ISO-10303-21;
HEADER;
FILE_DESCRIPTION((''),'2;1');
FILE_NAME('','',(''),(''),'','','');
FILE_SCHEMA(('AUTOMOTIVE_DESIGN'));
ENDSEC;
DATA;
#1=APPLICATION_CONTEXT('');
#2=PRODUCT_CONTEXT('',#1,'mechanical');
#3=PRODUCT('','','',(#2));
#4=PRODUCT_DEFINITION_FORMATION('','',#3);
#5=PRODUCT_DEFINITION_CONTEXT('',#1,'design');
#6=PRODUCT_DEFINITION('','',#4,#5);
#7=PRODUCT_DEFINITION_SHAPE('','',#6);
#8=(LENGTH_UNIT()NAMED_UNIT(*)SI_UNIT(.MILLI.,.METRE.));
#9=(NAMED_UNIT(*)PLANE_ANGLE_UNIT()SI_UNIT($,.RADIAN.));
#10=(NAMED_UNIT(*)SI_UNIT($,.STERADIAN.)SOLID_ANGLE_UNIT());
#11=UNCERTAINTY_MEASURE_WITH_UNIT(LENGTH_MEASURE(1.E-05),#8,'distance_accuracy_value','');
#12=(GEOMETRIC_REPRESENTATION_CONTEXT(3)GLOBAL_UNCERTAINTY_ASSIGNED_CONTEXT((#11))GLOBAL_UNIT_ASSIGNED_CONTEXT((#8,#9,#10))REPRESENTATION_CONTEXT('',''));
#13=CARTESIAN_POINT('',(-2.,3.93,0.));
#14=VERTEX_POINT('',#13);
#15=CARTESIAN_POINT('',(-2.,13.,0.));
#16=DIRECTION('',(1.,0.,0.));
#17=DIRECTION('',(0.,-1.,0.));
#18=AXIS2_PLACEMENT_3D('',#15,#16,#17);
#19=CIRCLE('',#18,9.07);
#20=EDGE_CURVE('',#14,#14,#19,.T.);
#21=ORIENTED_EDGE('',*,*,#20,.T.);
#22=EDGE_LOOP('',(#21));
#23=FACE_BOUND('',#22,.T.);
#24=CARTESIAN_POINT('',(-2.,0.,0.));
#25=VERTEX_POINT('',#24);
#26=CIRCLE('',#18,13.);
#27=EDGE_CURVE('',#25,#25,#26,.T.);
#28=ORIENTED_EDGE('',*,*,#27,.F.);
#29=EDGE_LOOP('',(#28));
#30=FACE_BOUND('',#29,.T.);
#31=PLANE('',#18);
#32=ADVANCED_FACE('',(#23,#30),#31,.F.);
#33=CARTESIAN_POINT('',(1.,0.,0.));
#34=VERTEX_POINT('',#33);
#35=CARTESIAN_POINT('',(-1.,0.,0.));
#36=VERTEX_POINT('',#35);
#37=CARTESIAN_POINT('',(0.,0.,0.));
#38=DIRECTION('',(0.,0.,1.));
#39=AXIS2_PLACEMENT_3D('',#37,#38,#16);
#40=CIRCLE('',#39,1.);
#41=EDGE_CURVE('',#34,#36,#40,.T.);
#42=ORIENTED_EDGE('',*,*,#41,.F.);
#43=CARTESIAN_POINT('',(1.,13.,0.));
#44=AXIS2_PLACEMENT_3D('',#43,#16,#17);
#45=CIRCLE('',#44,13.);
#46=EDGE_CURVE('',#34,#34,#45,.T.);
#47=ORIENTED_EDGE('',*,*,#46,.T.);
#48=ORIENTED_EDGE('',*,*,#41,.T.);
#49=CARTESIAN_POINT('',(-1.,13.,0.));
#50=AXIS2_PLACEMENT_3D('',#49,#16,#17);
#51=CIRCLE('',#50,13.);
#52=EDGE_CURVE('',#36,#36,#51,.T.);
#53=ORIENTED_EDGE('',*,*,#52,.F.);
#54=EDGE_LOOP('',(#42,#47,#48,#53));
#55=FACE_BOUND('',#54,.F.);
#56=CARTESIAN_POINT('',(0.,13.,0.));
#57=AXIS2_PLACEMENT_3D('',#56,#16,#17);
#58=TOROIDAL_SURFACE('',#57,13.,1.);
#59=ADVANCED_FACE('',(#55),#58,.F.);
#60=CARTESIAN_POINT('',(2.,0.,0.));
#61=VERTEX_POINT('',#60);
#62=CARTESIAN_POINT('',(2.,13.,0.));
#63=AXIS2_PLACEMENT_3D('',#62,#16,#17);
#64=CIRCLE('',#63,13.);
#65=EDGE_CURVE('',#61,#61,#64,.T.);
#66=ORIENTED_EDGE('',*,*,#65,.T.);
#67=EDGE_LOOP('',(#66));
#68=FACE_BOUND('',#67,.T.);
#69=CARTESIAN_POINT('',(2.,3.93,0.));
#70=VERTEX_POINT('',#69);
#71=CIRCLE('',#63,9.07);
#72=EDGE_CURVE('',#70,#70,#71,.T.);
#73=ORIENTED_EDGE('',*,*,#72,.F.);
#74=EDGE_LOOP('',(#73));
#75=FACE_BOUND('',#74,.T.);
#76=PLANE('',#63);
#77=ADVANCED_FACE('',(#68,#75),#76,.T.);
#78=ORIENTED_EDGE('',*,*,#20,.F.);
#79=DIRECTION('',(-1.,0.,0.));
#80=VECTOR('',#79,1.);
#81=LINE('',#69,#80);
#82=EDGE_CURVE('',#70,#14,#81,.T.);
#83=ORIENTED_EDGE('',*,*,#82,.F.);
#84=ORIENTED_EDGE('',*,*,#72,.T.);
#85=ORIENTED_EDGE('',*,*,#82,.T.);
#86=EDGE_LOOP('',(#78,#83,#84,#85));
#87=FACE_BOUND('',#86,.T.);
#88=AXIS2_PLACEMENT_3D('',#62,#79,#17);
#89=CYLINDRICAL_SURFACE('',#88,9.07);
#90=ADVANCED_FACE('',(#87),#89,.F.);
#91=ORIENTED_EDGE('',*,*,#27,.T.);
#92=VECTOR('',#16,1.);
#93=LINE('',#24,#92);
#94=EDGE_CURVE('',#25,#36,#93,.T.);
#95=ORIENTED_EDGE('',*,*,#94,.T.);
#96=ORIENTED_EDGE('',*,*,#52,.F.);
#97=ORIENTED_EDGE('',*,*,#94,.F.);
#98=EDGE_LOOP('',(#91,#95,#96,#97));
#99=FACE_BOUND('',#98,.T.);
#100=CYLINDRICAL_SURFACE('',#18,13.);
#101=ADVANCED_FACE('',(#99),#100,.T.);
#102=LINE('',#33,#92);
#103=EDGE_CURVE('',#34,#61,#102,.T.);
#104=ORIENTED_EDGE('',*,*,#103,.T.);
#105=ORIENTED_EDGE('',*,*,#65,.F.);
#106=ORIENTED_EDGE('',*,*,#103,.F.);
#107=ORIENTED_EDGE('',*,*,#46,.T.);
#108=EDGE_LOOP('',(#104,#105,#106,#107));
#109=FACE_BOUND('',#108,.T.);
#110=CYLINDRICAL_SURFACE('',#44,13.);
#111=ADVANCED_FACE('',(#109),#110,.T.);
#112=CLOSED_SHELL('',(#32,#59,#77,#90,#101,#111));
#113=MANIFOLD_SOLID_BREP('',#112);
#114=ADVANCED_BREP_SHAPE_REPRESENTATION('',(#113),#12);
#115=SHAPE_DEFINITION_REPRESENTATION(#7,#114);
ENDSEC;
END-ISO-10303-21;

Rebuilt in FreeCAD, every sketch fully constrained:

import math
import FreeCAD as App
import Part
import Sketcher

V = App.Vector

doc = App.newDocument("Part")
body = doc.addObject("PartDesign::Body", "Body")

sketch1 = doc.addObject("Sketcher::SketchObject", "Sketch")
body.addObject(sketch1)
sketch1.AttachmentSupport = (doc.XY_Plane, [""])
sketch1.MapMode = "FlatFace"
sketch1.addGeometry(Part.ArcOfCircle(Part.Circle(V(0, 0, 0), V(0, 0, 1), 1), math.radians(0), math.radians(180)), False)
sketch1.addGeometry(Part.LineSegment(V(1, 0, 0), V(2, 0, 0)), False)
sketch1.addGeometry(Part.LineSegment(V(2, 0, 0), V(2, 3.9, 0)), False)
sketch1.addGeometry(Part.LineSegment(V(2, 3.9, 0), V(-2, 3.9, 0)), False)
sketch1.addGeometry(Part.LineSegment(V(-2, 3.9, 0), V(-2, 0, 0)), False)
sketch1.addGeometry(Part.LineSegment(V(-2, 0, 0), V(-1, 0, 0)), False)
sketch1.addGeometry(Part.LineSegment(V(-2, 13, 0), V(2, 13, 0)), True)
sketch1.addConstraint(Sketcher.Constraint("Coincident", 0, 1, 1, 1))
sketch1.addConstraint(Sketcher.Constraint("Coincident", 1, 2, 2, 1))
sketch1.addConstraint(Sketcher.Constraint("Coincident", 2, 2, 3, 1))
sketch1.addConstraint(Sketcher.Constraint("Coincident", 3, 2, 4, 1))
sketch1.addConstraint(Sketcher.Constraint("Coincident", 4, 2, 5, 1))
sketch1.addConstraint(Sketcher.Constraint("Coincident", 5, 2, 0, 2))
sketch1.addConstraint(Sketcher.Constraint("Horizontal", 1))
sketch1.addConstraint(Sketcher.Constraint("Vertical", 2))
sketch1.addConstraint(Sketcher.Constraint("Horizontal", 3))
sketch1.addConstraint(Sketcher.Constraint("Vertical", 4))
sketch1.addConstraint(Sketcher.Constraint("Horizontal", 5))
sketch1.addConstraint(Sketcher.Constraint("Horizontal", 6))
sketch1.addConstraint(Sketcher.Constraint("Coincident", 0, 3, -1, 1))
sketch1.addConstraint(Sketcher.Constraint("Symmetric", 1, 2, 4, 2, -1, 1))
sketch1.addConstraint(Sketcher.Constraint("PointOnObject", 0, 1, -1))
sketch1.addConstraint(Sketcher.Constraint("Vertical", 4, 2, 6, 1))
sketch1.addConstraint(Sketcher.Constraint("Vertical", 2, 2, 6, 2))
sketch1.addConstraint(Sketcher.Constraint("Radius", 0, 1.0))
sketch1.addConstraint(Sketcher.Constraint("DistanceX", 1, 1, 1, 2, 1.0))
sketch1.addConstraint(Sketcher.Constraint("DistanceY", -1, 1, 6, 1, 13.0))
sketch1.addConstraint(Sketcher.Constraint("DistanceY", 3, 2, 6, 1, 9.07))
revolution = doc.addObject("PartDesign::Revolution", "Revolution")
body.addObject(revolution)
revolution.Profile = sketch1
revolution.ReferenceAxis = (sketch1, ["Axis0"])
revolution.Angle = 360

doc.recompute()
